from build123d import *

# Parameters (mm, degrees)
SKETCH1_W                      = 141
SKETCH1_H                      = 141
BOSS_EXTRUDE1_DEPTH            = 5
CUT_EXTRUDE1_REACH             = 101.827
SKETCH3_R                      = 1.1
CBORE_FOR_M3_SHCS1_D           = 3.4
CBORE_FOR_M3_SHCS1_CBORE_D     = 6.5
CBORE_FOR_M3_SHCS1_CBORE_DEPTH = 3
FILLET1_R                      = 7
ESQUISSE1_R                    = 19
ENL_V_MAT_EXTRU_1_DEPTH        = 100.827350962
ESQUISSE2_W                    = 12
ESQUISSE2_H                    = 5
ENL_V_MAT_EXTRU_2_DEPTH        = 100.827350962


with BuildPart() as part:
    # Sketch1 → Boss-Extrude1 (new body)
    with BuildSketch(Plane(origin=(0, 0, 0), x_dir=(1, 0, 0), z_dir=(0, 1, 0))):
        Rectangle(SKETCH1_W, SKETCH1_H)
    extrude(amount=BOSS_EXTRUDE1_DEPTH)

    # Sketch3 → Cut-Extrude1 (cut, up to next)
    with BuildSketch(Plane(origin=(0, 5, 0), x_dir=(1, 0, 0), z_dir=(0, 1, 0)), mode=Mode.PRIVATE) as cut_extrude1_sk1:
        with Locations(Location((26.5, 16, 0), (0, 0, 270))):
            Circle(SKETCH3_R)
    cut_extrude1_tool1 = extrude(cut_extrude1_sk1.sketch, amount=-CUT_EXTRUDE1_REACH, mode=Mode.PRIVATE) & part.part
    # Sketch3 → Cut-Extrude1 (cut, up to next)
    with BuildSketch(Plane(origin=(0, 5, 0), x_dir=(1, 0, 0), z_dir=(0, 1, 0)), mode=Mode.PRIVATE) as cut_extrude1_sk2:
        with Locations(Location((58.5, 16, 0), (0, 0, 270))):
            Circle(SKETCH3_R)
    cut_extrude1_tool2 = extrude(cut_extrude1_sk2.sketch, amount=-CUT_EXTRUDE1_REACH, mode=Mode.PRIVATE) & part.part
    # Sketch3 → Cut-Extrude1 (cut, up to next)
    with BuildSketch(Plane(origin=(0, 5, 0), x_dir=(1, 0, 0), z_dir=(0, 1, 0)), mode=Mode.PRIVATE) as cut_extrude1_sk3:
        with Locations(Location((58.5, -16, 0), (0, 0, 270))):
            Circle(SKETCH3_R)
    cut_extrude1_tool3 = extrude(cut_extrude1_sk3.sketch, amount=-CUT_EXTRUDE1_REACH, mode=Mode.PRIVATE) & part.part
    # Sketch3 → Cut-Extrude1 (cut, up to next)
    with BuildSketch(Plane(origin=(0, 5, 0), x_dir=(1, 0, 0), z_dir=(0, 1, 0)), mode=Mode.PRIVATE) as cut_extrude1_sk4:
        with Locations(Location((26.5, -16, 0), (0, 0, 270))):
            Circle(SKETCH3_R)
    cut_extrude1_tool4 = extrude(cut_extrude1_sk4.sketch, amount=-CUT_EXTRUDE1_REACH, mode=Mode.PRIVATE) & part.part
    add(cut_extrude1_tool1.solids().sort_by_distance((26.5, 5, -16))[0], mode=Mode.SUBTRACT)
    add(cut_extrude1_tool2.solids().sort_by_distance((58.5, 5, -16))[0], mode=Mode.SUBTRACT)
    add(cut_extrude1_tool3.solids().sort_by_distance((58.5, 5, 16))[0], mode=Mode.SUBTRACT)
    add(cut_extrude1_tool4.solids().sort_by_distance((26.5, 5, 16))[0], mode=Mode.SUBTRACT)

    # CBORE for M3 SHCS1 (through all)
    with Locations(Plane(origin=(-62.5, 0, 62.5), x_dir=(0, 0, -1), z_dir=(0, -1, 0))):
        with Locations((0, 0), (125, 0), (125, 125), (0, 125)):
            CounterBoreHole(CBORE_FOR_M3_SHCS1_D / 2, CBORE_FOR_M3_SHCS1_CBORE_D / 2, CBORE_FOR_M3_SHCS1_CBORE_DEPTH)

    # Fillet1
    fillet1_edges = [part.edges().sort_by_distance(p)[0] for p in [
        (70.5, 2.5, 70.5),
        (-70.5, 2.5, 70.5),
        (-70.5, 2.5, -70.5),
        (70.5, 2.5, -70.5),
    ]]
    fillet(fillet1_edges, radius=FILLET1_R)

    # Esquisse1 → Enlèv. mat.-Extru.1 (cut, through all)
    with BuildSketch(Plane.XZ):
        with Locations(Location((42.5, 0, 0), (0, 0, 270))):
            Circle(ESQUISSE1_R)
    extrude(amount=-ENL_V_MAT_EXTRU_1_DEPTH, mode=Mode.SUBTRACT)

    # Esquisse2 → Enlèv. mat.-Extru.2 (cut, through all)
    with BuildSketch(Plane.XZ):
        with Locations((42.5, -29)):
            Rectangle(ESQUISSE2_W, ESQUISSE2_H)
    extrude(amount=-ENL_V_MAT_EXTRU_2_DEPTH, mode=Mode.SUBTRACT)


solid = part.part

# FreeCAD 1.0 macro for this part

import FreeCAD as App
import Part
import Sketcher

V = App.Vector
Q = App.Units.Quantity


def edges_at(feature, points):
    """Names of the edges that pass closest to the given points."""
    edges = feature.Shape.Edges
    near = lambda p: min(range(len(edges)), key=lambda i: edges[i].distToShape(Part.Vertex(*p))[0])
    return sorted({f"Edge{near(p) + 1}" for p in points})


def add_polygon(sketch, points):
    """Adds a closed chain of lines whose ends are joined by coincident constraints."""
    first, n = sketch.GeometryCount, len(points)
    for a, b in zip(points, points[1:] + points[:1]):
        sketch.addGeometry(Part.LineSegment(App.Vector(*a, 0), App.Vector(*b, 0)), False)
    for i in range(n):
        sketch.addConstraint(Sketcher.Constraint("Coincident", first + i, 2, first + (i + 1) % n, 1))

doc = App.newDocument("Part")
body = doc.addObject("PartDesign::Body", "Body")

sketch1 = doc.addObject("Sketcher::SketchObject", "Sketch")
body.addObject(sketch1)
sketch1.AttachmentSupport = (doc.XZ_Plane, [""])
sketch1.MapMode = "FlatFace"
add_polygon(sketch1, [(-70, -70), (-70, 70), (70, 70), (70, -70)])
sketch1.addConstraint(Sketcher.Constraint("Vertical", 0))
sketch1.addConstraint(Sketcher.Constraint("Horizontal", 1))
sketch1.addConstraint(Sketcher.Constraint("Vertical", 2))
sketch1.addConstraint(Sketcher.Constraint("Horizontal", 3))
sketch1.addConstraint(Sketcher.Constraint("Symmetric", 0, 2, 2, 2, -1, 1))
sketch1.addConstraint(Sketcher.Constraint("Equal", 3, 0))
sketch1.addConstraint(Sketcher.Constraint("DistanceX", 1, 1, 1, 2, Q("141 mm")))
pad1 = doc.addObject("PartDesign::Pad", "Pad")
body.addObject(pad1)
pad1.Profile = sketch1
pad1.Length = 5
pad1.Reversed = True

sketch2 = doc.addObject("Sketcher::SketchObject", "Sketch001")
body.addObject(sketch2)
sketch2.AttachmentSupport = (doc.XZ_Plane, [""])
sketch2.MapMode = "FlatFace"
sketch2.AttachmentOffset = App.Placement(V(0, 0, -5), App.Rotation())
sketch2.addGeometry(Part.Circle(V(26.5, -16, 0), V(0, 0, 1), 1.1), False)
sketch2.addConstraint(Sketcher.Constraint("Diameter", 0, Q("2.2 mm")))
sketch2.addConstraint(Sketcher.Constraint("DistanceY", 0, 3, -1, 1, Q("16 mm")))
sketch2.addConstraint(Sketcher.Constraint("DistanceX", -1, 1, 0, 3, Q("26.5 mm")))
pocket1 = doc.addObject("PartDesign::Pocket", "Pocket")
body.addObject(pocket1)
pocket1.Profile = sketch2
pocket1.Type = "UpToFirst"
pocket1.Reversed = True

sketch3 = doc.addObject("Sketcher::SketchObject", "Sketch002")
body.addObject(sketch3)
sketch3.AttachmentSupport = (doc.XZ_Plane, [""])
sketch3.MapMode = "FlatFace"
sketch3.AttachmentOffset = App.Placement(V(0, 0, -5), App.Rotation())
sketch3.addGeometry(Part.Circle(V(58.5, -16, 0), V(0, 0, 1), 1.1), False)
sketch3.addConstraint(Sketcher.Constraint("Diameter", 0, Q("2.2 mm")))
sketch3.addConstraint(Sketcher.Constraint("DistanceY", 0, 3, -1, 1, Q("16 mm")))
sketch3.addConstraint(Sketcher.Constraint("DistanceX", -1, 1, 0, 3, Q("58.5 mm")))
pocket2 = doc.addObject("PartDesign::Pocket", "Pocket001")
body.addObject(pocket2)
pocket2.Profile = sketch3
pocket2.Type = "UpToFirst"
pocket2.Reversed = True

sketch4 = doc.addObject("Sketcher::SketchObject", "Sketch003")
body.addObject(sketch4)
sketch4.AttachmentSupport = (doc.XZ_Plane, [""])
sketch4.MapMode = "FlatFace"
sketch4.AttachmentOffset = App.Placement(V(0, 0, -5), App.Rotation())
sketch4.addGeometry(Part.Circle(V(58.5, 16, 0), V(0, 0, 1), 1.1), False)
sketch4.addConstraint(Sketcher.Constraint("Diameter", 0, Q("2.2 mm")))
sketch4.addConstraint(Sketcher.Constraint("DistanceY", -1, 1, 0, 3, Q("16 mm")))
sketch4.addConstraint(Sketcher.Constraint("DistanceX", -1, 1, 0, 3, Q("58.5 mm")))
pocket3 = doc.addObject("PartDesign::Pocket", "Pocket002")
body.addObject(pocket3)
pocket3.Profile = sketch4
pocket3.Type = "UpToFirst"
pocket3.Reversed = True

sketch5 = doc.addObject("Sketcher::SketchObject", "Sketch004")
body.addObject(sketch5)
sketch5.AttachmentSupport = (doc.XZ_Plane, [""])
sketch5.MapMode = "FlatFace"
sketch5.AttachmentOffset = App.Placement(V(0, 0, -5), App.Rotation())
sketch5.addGeometry(Part.Circle(V(26.5, 16, 0), V(0, 0, 1), 1.1), False)
sketch5.addConstraint(Sketcher.Constraint("Diameter", 0, Q("2.2 mm")))
sketch5.addConstraint(Sketcher.Constraint("DistanceY", -1, 1, 0, 3, Q("16 mm")))
sketch5.addConstraint(Sketcher.Constraint("DistanceX", -1, 1, 0, 3, Q("26.5 mm")))
pocket4 = doc.addObject("PartDesign::Pocket", "Pocket003")
body.addObject(pocket4)
pocket4.Profile = sketch5
pocket4.Type = "UpToFirst"
pocket4.Reversed = True

sketch6 = doc.addObject("Sketcher::SketchObject", "Sketch005")
body.addObject(sketch6)
sketch6.AttachmentSupport = (doc.XZ_Plane, [""])
sketch6.MapMode = "FlatFace"
sketch6.addGeometry(Part.Circle(V(-62.5, 62.5, 0), V(0, 0, 1), 1.7), False)
sketch6.addGeometry(Part.Circle(V(-62.5, -62.5, 0), V(0, 0, 1), 1.7), False)
sketch6.addGeometry(Part.Circle(V(62.5, -62.5, 0), V(0, 0, 1), 1.7), False)
sketch6.addGeometry(Part.Circle(V(62.5, 62.5, 0), V(0, 0, 1), 1.7), False)
sketch6.addConstraint(Sketcher.Constraint("Equal", 0, 1))
sketch6.addConstraint(Sketcher.Constraint("Equal", 1, 2))
sketch6.addConstraint(Sketcher.Constraint("Equal", 2, 3))
sketch6.addConstraint(Sketcher.Constraint("Symmetric", 0, 3, 2, 3, -1, 1))
sketch6.addConstraint(Sketcher.Constraint("Symmetric", 1, 3, 3, 3, -1, 1))
sketch6.addConstraint(Sketcher.Constraint("Symmetric", 1, 3, 2, 3, -2))
sketch6.addConstraint(Sketcher.Constraint("Diameter", 0, Q("3.4 mm")))
sketch6.addConstraint(Sketcher.Constraint("DistanceY", 1, 3, 0, 3, Q("125 mm")))
sketch6.addConstraint(Sketcher.Constraint("DistanceX", 1, 3, 2, 3, Q("125 mm")))
doc.recompute()
hole = doc.addObject("PartDesign::Hole", "Hole")
body.addObject(hole)
hole.Profile = sketch6
hole.ThreadType = "None"
hole.Diameter = 3.4
hole.DepthType = "ThroughAll"
hole.HoleCutType = "Counterbore"
hole.HoleCutDiameter = 6.5
hole.HoleCutDepth = 3
doc.recompute()

fillet = doc.addObject("PartDesign::Fillet", "Fillet")
body.addObject(fillet)
fillet.Base = (hole, edges_at(hole, [
    (70.5, 2.5, 70.5),
    (-70.5, 2.5, 70.5),
    (-70.5, 2.5, -70.5),
    (70.5, 2.5, -70.5),
]))
fillet.Radius = 7

sketch7 = doc.addObject("Sketcher::SketchObject", "Sketch006")
body.addObject(sketch7)
sketch7.AttachmentSupport = (doc.XZ_Plane, [""])
sketch7.MapMode = "FlatFace"
sketch7.addGeometry(Part.Circle(V(42, 0, 0), V(0, 0, 1), 19), False)
sketch7.addConstraint(Sketcher.Constraint("PointOnObject", 0, 3, -1))
sketch7.addConstraint(Sketcher.Constraint("Diameter", 0, Q("38 mm")))
sketch7.addConstraint(Sketcher.Constraint("DistanceX", -1, 1, 0, 3, Q("42.5 mm")))
pocket5 = doc.addObject("PartDesign::Pocket", "Pocket004")
body.addObject(pocket5)
pocket5.Profile = sketch7
pocket5.Type = "ThroughAll"

sketch8 = doc.addObject("Sketcher::SketchObject", "Sketch007")
body.addObject(sketch8)
sketch8.AttachmentSupport = (doc.XZ_Plane, [""])
sketch8.MapMode = "FlatFace"
add_polygon(sketch8, [(36, -26), (36, -32), (48, -32), (48, -26)])
sketch8.addConstraint(Sketcher.Constraint("Vertical", 0))
sketch8.addConstraint(Sketcher.Constraint("Horizontal", 1))
sketch8.addConstraint(Sketcher.Constraint("Vertical", 2))
sketch8.addConstraint(Sketcher.Constraint("Horizontal", 3))
sketch8.addConstraint(Sketcher.Constraint("DistanceX", 1, 1, 1, 2, Q("12 mm")))
sketch8.addConstraint(Sketcher.Constraint("DistanceY", 0, 2, 0, 1, Q("5 mm")))
sketch8.addConstraint(Sketcher.Constraint("DistanceX", -1, 1, 0, 2, Q("36.5 mm")))
sketch8.addConstraint(Sketcher.Constraint("DistanceY", 0, 2, -1, 1, Q("31.5 mm")))
pocket6 = doc.addObject("PartDesign::Pocket", "Pocket005")
body.addObject(pocket6)
pocket6.Profile = sketch8
pocket6.Type = "ThroughAll"

doc.recompute()
